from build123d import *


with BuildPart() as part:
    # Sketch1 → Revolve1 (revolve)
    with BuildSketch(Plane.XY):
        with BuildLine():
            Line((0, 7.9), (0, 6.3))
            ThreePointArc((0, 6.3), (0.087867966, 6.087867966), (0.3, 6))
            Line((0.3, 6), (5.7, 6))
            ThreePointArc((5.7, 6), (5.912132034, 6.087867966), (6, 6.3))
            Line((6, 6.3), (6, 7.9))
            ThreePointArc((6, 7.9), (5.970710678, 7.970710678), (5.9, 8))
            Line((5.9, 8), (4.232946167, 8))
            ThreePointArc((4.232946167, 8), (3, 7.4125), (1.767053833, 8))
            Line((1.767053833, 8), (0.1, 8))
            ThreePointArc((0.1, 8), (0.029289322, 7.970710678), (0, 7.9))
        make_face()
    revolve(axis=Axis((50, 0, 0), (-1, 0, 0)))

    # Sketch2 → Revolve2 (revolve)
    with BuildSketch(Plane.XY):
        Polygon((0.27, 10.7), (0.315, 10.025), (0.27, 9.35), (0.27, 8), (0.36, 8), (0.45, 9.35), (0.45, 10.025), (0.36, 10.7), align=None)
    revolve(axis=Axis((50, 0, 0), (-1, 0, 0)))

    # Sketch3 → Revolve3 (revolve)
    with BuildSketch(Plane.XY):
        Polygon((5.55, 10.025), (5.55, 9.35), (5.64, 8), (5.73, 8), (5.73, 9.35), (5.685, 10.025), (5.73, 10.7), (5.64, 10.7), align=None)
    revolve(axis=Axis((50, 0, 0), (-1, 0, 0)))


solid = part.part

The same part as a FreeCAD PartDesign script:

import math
import FreeCAD as App
import Part
import Sketcher

V = App.Vector
Q = App.Units.Quantity

doc = App.newDocument("Part")
body = doc.addObject("PartDesign::Body", "Body")

sketch1 = body.newObject("Sketcher::SketchObject", "Sketch")
sketch1.AttachmentSupport = (doc.getObject("XY_Plane"), [""])
sketch1.MapMode = "FlatFace"
sketch1.addGeometry([
    Part.LineSegment(V(0, 7.9, 0), V(0, 6.3, 0)),
    Part.ArcOfCircle(Part.Circle(V(0.3, 6.3, 0), V(0, 0, 1), 0.3), math.radians(-180), math.radians(-90)),
    Part.LineSegment(V(0.3, 6, 0), V(5.7, 6, 0)),
    Part.ArcOfCircle(Part.Circle(V(5.7, 6.3, 0), V(0, 0, 1), 0.3), math.radians(-90), math.radians(0)),
    Part.LineSegment(V(6, 6.3, 0), V(6, 7.9, 0)),
    Part.ArcOfCircle(Part.Circle(V(5.9, 7.9, 0), V(0, 0, 1), 0.1), math.radians(0), math.radians(90)),
    Part.LineSegment(V(5.9, 8, 0), V(4.23, 8, 0)),
    Part.ArcOfCircle(Part.Circle(V(3, 9, 0), V(0, 0, 1), 1.59), math.radians(-141), math.radians(-39)),
    Part.LineSegment(V(1.77, 8, 0), V(0.1, 8, 0)),
    Part.ArcOfCircle(Part.Circle(V(0.1, 7.9, 0), V(0, 0, 1), 0.1), math.radians(90), math.radians(180)),
], False)
sketch1.addConstraint([
    Sketcher.Constraint("Tangent", 0, 2, 1, 1),
    Sketcher.Constraint("Tangent", 1, 2, 2, 1),
    Sketcher.Constraint("Tangent", 2, 2, 3, 1),
    Sketcher.Constraint("Tangent", 3, 2, 4, 1),
    Sketcher.Constraint("Tangent", 4, 2, 5, 1),
    Sketcher.Constraint("Tangent", 5, 2, 6, 1),
    Sketcher.Constraint("Coincident", 6, 2, 7, 2),
    Sketcher.Constraint("Coincident", 7, 1, 8, 1),
    Sketcher.Constraint("Tangent", 8, 2, 9, 1),
    Sketcher.Constraint("Tangent", 9, 2, 0, 1),
    Sketcher.Constraint("Vertical", 0),
    Sketcher.Constraint("Horizontal", 2),
    Sketcher.Constraint("Vertical", 4),
    Sketcher.Constraint("Horizontal", 6),
    Sketcher.Constraint("Horizontal", 8),
    Sketcher.Constraint("Equal", 1, 3),
    Sketcher.Constraint("Equal", 5, 9),
    Sketcher.Constraint("PointOnObject", 0, 2, -2),
    Sketcher.Constraint("Horizontal", 5, 3, 9, 3),
    Sketcher.Constraint("Equal", 6, 8),
    Sketcher.Constraint("Radius", 1, Q("0.3 mm")),
    Sketcher.Constraint("Radius", 5, Q("0.1 mm")),
    Sketcher.Constraint("DistanceX", 2, 1, 2, 2, Q("5.4 mm")),
    Sketcher.Constraint("DistanceY", 0, 2, 0, 1, Q("1.6 mm")),
    Sketcher.Constraint("DistanceY", -1, 1, 7, 3, Q("9 mm")),
    Sketcher.Constraint("DistanceY", -1, 1, 1, 2, Q("6 mm")),
    Sketcher.Constraint("Radius", 7, Q("1.5875 mm")),
])
revolution = body.newObject("PartDesign::Revolution", "Revolution")
revolution.Profile = sketch1
revolution.ReferenceAxis = (sketch1, ["H_Axis"])
revolution.Angle = 360

sketch2 = body.newObject("Sketcher::SketchObject", "Sketch001")
sketch2.AttachmentSupport = (doc.getObject("XY_Plane"), [""])
sketch2.MapMode = "FlatFace"
sketch2.addGeometry([
    Part.LineSegment(V(0.27, 10.7, 0), V(0.32, 10.03, 0)),
    Part.LineSegment(V(0.32, 10.03, 0), V(0.27, 9.35, 0)),
    Part.LineSegment(V(0.27, 9.35, 0), V(0.27, 8, 0)),
    Part.LineSegment(V(0.27, 8, 0), V(0.36, 8, 0)),
    Part.LineSegment(V(0.36, 8, 0), V(0.45, 9.35, 0)),
    Part.LineSegment(V(0.45, 9.35, 0), V(0.45, 10.03, 0)),
    Part.LineSegment(V(0.45, 10.03, 0), V(0.36, 10.7, 0)),
    Part.LineSegment(V(0.36, 10.7, 0), V(0.27, 10.7, 0)),
], False)
sketch2.addConstraint([
    Sketcher.Constraint("Coincident", 0, 2, 1, 1),
    Sketcher.Constraint("Coincident", 1, 2, 2, 1),
    Sketcher.Constraint("Coincident", 2, 2, 3, 1),
    Sketcher.Constraint("Coincident", 3, 2, 4, 1),
    Sketcher.Constraint("Coincident", 4, 2, 5, 1),
    Sketcher.Constraint("Coincident", 5, 2, 6, 1),
    Sketcher.Constraint("Coincident", 6, 2, 7, 1),
    Sketcher.Constraint("Coincident", 7, 2, 0, 1),
    Sketcher.Constraint("Vertical", 2),
    Sketcher.Constraint("Horizontal", 3),
    Sketcher.Constraint("Vertical", 5),
    Sketcher.Constraint("Horizontal", 7),
    Sketcher.Constraint("Parallel", 1, 4),
    Sketcher.Constraint("Horizontal", 1, 2, 4, 2),
    Sketcher.Constraint("Horizontal", 0, 2, 5, 2),
    Sketcher.Constraint("Vertical", 3, 2, 6, 2),
    Sketcher.Constraint("Vertical", 2, 2, 7, 2),
    Sketcher.Constraint("Equal", 0, 1),
    Sketcher.Constraint("DistanceY", -1, 1, 2, 2, Q("8 mm")),
    Sketcher.Constraint("DistanceX", 3, 1, 3, 2, Q("0.09 mm")),
    Sketcher.Constraint("DistanceY", 2, 2, 2, 1, Q("1.35 mm")),
    Sketcher.Constraint("DistanceY", -1, 1, 6, 2, Q("10.7 mm")),
    Sketcher.Constraint("DistanceX", -1, 1, 1, 2, Q("0.27 mm")),
    Sketcher.Constraint("DistanceX", -1, 1, 4, 2, Q("0.45 mm")),
])
revolution2 = body.newObject("PartDesign::Revolution", "Revolution001")
revolution2.Profile = sketch2
revolution2.ReferenceAxis = (sketch2, ["H_Axis"])
revolution2.Angle = 360

sketch3 = body.newObject("Sketcher::SketchObject", "Sketch002")
sketch3.AttachmentSupport = (doc.getObject("XY_Plane"), [""])
sketch3.MapMode = "FlatFace"
sketch3.addGeometry([
    Part.LineSegment(V(5.55, 10.03, 0), V(5.55, 9.35, 0)),
    Part.LineSegment(V(5.55, 9.35, 0), V(5.64, 8, 0)),
    Part.LineSegment(V(5.64, 8, 0), V(5.73, 8, 0)),
    Part.LineSegment(V(5.73, 8, 0), V(5.73, 9.35, 0)),
    Part.LineSegment(V(5.73, 9.35, 0), V(5.68, 10.03, 0)),
    Part.LineSegment(V(5.68, 10.03, 0), V(5.73, 10.7, 0)),
    Part.LineSegment(V(5.73, 10.7, 0), V(5.64, 10.7, 0)),
    Part.LineSegment(V(5.64, 10.7, 0), V(5.55, 10.03, 0)),
], False)
sketch3.addConstraint([
    Sketcher.Constraint("Coincident", 0, 2, 1, 1),
    Sketcher.Constraint("Coincident", 1, 2, 2, 1),
    Sketcher.Constraint("Coincident", 2, 2, 3, 1),
    Sketcher.Constraint("Coincident", 3, 2, 4, 1),
    Sketcher.Constraint("Coincident", 4, 2, 5, 1),
    Sketcher.Constraint("Coincident", 5, 2, 6, 1),
    Sketcher.Constraint("Coincident", 6, 2, 7, 1),
    Sketcher.Constraint("Coincident", 7, 2, 0, 1),
    Sketcher.Constraint("Vertical", 0),
    Sketcher.Constraint("Horizontal", 2),
    Sketcher.Constraint("Vertical", 3),
    Sketcher.Constraint("Horizontal", 6),
    Sketcher.Constraint("Parallel", 1, 4),
    Sketcher.Constraint("Horizontal", 0, 2, 3, 2),
    Sketcher.Constraint("Horizontal", 4, 2, 7, 2),
    Sketcher.Constraint("Vertical", 3, 2, 5, 2),
    Sketcher.Constraint("Vertical", 1, 2, 6, 2),
    Sketcher.Constraint("Equal", 4, 5),
    Sketcher.Constraint("DistanceY", -1, 1, 1, 2, Q("8 mm")),
    Sketcher.Constraint("DistanceX", 2, 1, 2, 2, Q("0.09 mm")),
    Sketcher.Constraint("DistanceY", 3, 1, 3, 2, Q("1.35 mm")),
    Sketcher.Constraint("DistanceY", -1, 1, 5, 2, Q("10.7 mm")),
    Sketcher.Constraint("DistanceX", -1, 1, 0, 2, Q("5.55 mm")),
    Sketcher.Constraint("DistanceX", -1, 1, 1, 2, Q("5.64 mm")),
])
revolution3 = body.newObject("PartDesign::Revolution", "Revolution002")
revolution3.Profile = sketch3
revolution3.ReferenceAxis = (sketch3, ["H_Axis"])
revolution3.Angle = 360

doc.recompute()
